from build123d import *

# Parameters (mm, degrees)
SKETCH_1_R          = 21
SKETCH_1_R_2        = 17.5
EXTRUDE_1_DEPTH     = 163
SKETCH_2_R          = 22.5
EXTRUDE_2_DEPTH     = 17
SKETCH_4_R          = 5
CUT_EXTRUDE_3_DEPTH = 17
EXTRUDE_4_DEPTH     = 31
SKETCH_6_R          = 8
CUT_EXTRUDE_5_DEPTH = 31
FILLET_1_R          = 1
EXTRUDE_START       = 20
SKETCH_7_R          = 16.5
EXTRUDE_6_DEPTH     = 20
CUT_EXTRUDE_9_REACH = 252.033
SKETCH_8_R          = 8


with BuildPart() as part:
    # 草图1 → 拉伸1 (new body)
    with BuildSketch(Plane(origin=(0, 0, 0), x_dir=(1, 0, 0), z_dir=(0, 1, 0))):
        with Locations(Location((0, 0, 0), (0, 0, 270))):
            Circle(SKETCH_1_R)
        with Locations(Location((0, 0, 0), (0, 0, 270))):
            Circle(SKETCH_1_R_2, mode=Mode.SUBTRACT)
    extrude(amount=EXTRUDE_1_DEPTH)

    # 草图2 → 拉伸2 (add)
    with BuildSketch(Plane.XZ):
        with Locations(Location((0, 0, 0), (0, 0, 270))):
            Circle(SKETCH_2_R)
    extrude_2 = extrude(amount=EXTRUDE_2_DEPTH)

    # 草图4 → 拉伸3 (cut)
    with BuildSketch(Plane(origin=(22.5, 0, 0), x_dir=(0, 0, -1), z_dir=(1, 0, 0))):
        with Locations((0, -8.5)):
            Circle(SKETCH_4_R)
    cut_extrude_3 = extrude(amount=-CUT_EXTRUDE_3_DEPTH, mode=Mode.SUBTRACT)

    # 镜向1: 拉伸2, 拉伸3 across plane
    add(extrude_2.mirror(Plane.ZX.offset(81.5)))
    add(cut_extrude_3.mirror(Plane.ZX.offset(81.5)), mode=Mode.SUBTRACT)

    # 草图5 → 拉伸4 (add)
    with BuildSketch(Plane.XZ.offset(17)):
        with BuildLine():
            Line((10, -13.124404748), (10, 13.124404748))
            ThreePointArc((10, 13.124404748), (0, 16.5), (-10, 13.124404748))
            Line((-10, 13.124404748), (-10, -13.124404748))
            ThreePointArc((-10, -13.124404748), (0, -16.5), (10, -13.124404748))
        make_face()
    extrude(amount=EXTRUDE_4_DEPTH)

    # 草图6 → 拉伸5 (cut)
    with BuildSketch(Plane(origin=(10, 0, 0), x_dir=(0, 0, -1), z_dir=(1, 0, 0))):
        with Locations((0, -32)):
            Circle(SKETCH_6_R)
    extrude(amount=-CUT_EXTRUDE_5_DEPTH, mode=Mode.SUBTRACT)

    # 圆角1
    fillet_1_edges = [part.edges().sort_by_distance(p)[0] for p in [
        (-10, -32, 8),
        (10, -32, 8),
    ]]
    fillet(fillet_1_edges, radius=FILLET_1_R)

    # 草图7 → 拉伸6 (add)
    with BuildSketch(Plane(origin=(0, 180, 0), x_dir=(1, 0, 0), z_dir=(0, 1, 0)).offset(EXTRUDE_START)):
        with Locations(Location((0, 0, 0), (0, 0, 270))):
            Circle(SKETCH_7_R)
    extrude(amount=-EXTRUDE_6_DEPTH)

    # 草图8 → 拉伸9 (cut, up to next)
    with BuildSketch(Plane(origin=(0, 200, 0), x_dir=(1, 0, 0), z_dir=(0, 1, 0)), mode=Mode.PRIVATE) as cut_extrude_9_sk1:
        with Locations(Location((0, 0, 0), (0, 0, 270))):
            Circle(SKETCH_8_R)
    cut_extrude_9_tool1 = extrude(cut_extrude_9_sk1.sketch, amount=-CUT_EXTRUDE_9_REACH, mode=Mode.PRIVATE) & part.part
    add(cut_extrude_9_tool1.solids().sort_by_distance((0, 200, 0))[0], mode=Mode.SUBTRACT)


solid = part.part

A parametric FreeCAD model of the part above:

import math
import FreeCAD as App
import Part
import Sketcher


def edges_at(feature, points):
    """Names of the edges that pass closest to the given points."""
    edges = feature.Shape.Edges
    near = lambda p: min(range(len(edges)), key=lambda i: edges[i].distToShape(Part.Vertex(*p))[0])
    return sorted({f"Edge{near(p) + 1}" for p in points})

doc = App.newDocument("Part")
body = doc.addObject("PartDesign::Body", "Body")

# Sketch on XZ plane
sketch1 = doc.addObject("Sketcher::SketchObject", "Sketch")
body.addObject(sketch1)
sketch1.AttachmentSupport = (doc.XZ_Plane, [""])
sketch1.MapMode = "FlatFace"
sketch1.addGeometry([
    Part.Circle(App.Vector(0, 0, 0), App.Vector(0, 0, 1), 21),
    Part.Circle(App.Vector(0, 0, 0), App.Vector(0, 0, 1), 18),
], False)
sketch1.addConstraint([
    Sketcher.Constraint("Coincident", 0, 3, -1, 1),
    Sketcher.Constraint("Coincident", 1, 3, -1, 1),
    Sketcher.Constraint("Diameter", 0, 42.0),
    Sketcher.Constraint("Diameter", 1, 35.0),
])
pad1 = doc.addObject("PartDesign::Pad", "Pad")
body.addObject(pad1)
pad1.Profile = sketch1
pad1.Length = 163
pad1.Reversed = True

# Sketch on XZ plane
sketch2 = doc.addObject("Sketcher::SketchObject", "Sketch001")
body.addObject(sketch2)
sketch2.AttachmentSupport = (doc.XZ_Plane, [""])
sketch2.MapMode = "FlatFace"
sketch2.addGeometry(Part.Circle(App.Vector(0, 0, 0), App.Vector(0, 0, 1), 22), False)
sketch2.addConstraint([
    Sketcher.Constraint("Coincident", 0, 3, -1, 1),
    Sketcher.Constraint("Diameter", 0, 45.0),
])
pad2 = doc.addObject("PartDesign::Pad", "Pad001")
body.addObject(pad2)
pad2.Profile = sketch2
pad2.Length = 17

# Sketch on YZ plane
sketch3 = doc.addObject("Sketcher::SketchObject", "Sketch002")
body.addObject(sketch3)
sketch3.AttachmentSupport = (doc.YZ_Plane, [""])
sketch3.MapMode = "FlatFace"
sketch3.AttachmentOffset = App.Placement(App.Vector(0, 0, 22.5), App.Rotation())
sketch3.addGeometry(Part.Circle(App.Vector(-8, 0, 0), App.Vector(0, 0, 1), 5), False)
sketch3.addConstraint([
    Sketcher.Constraint("PointOnObject", 0, 3, -1),
    Sketcher.Constraint("Diameter", 0, 10.0),
    Sketcher.Constraint("DistanceX", 0, 3, -1, 1, 8.5),
])
pocket1 = doc.addObject("PartDesign::Pocket", "Pocket")
body.addObject(pocket1)
pocket1.Profile = sketch3
pocket1.Length = 17
doc.recompute()

datumplane = doc.addObject("PartDesign::Plane", "DatumPlane")
body.addObject(datumplane)
datumplane.AttachmentSupport = (doc.XZ_Plane, [""])
datumplane.MapMode = "FlatFace"
datumplane.AttachmentOffset = App.Placement(App.Vector(0, 0, -81.5), App.Rotation())
mirrored = doc.addObject("PartDesign::Mirrored", "Mirrored")
body.addObject(mirrored)
mirrored.Originals = [pad2, pocket1]
mirrored.MirrorPlane = (datumplane, [""])
body.Tip = mirrored

# Sketch on XZ plane
sketch4 = doc.addObject("Sketcher::SketchObject", "Sketch003")
body.addObject(sketch4)
sketch4.AttachmentSupport = (doc.XZ_Plane, [""])
sketch4.MapMode = "FlatFace"
sketch4.AttachmentOffset = App.Placement(App.Vector(0, 0, 17), App.Rotation())
sketch4.addGeometry([
    Part.LineSegment(App.Vector(10, -13, 0), App.Vector(10, 13, 0)),
    Part.ArcOfCircle(Part.Circle(App.Vector(0, 0, 0), App.Vector(0, 0, 1), 16), math.radians(53), math.radians(127)),
    Part.LineSegment(App.Vector(-10, 13, 0), App.Vector(-10, -13, 0)),
    Part.ArcOfCircle(Part.Circle(App.Vector(0, 0, 0), App.Vector(0, 0, 1), 16), math.radians(-127), math.radians(-53)),
], False)
sketch4.addConstraint([
    Sketcher.Constraint("Coincident", 0, 2, 1, 1),
    Sketcher.Constraint("Coincident", 1, 2, 2, 1),
    Sketcher.Constraint("Coincident", 2, 2, 3, 1),
    Sketcher.Constraint("Coincident", 3, 2, 0, 1),
    Sketcher.Constraint("Vertical", 0),
    Sketcher.Constraint("Vertical", 2),
    Sketcher.Constraint("Coincident", 1, 3, -1, 1),
    Sketcher.Constraint("Coincident", 3, 3, -1, 1),
    Sketcher.Constraint("Equal", 1, 3),
    Sketcher.Constraint("Horizontal", 0, 2, 1, 2),
    Sketcher.Constraint("Radius", 1, 16.5),
    Sketcher.Constraint("DistanceX", -1, 1, 0, 2, 10.0),
])
pad3 = doc.addObject("PartDesign::Pad", "Pad002")
body.addObject(pad3)
pad3.Profile = sketch4
pad3.Length = 31

# Sketch on YZ plane
sketch5 = doc.addObject("Sketcher::SketchObject", "Sketch004")
body.addObject(sketch5)
sketch5.AttachmentSupport = (doc.YZ_Plane, [""])
sketch5.MapMode = "FlatFace"
sketch5.AttachmentOffset = App.Placement(App.Vector(0, 0, 10), App.Rotation())
sketch5.addGeometry(Part.Circle(App.Vector(-32, 0, 0), App.Vector(0, 0, 1), 8), False)
sketch5.addConstraint([
    Sketcher.Constraint("PointOnObject", 0, 3, -1),
    Sketcher.Constraint("Diameter", 0, 16.0),
    Sketcher.Constraint("DistanceX", 0, 3, -1, 1, 32.0),
])
pocket2 = doc.addObject("PartDesign::Pocket", "Pocket001")
body.addObject(pocket2)
pocket2.Profile = sketch5
pocket2.Length = 31
doc.recompute()

fillet = doc.addObject("PartDesign::Fillet", "Fillet")
body.addObject(fillet)
fillet.Base = (pocket2, edges_at(pocket2, [(-10, -32, 8), (10, -32, 8)]))
fillet.Radius = 1

# Sketch on XZ plane
sketch6 = doc.addObject("Sketcher::SketchObject", "Sketch005")
body.addObject(sketch6)
sketch6.AttachmentSupport = (doc.XZ_Plane, [""])
sketch6.MapMode = "FlatFace"
sketch6.AttachmentOffset = App.Placement(App.Vector(0, 0, -200), App.Rotation())
sketch6.addGeometry(Part.Circle(App.Vector(0, 0, 0), App.Vector(0, 0, 1), 16), False)
sketch6.addConstraint([
    Sketcher.Constraint("Coincident", 0, 3, -1, 1),
    Sketcher.Constraint("Diameter", 0, 33.0),
])
pad4 = doc.addObject("PartDesign::Pad", "Pad003")
body.addObject(pad4)
pad4.Profile = sketch6
pad4.Length = 20

# Sketch on XZ plane
sketch7 = doc.addObject("Sketcher::SketchObject", "Sketch006")
body.addObject(sketch7)
sketch7.AttachmentSupport = (doc.XZ_Plane, [""])
sketch7.MapMode = "FlatFace"
sketch7.AttachmentOffset = App.Placement(App.Vector(0, 0, -200), App.Rotation())
sketch7.addGeometry(Part.Circle(App.Vector(0, 0, 0), App.Vector(0, 0, 1), 8), False)
sketch7.addConstraint([
    Sketcher.Constraint("Coincident", 0, 3, -1, 1),
    Sketcher.Constraint("Diameter", 0, 16.0),
])
pocket3 = doc.addObject("PartDesign::Pocket", "Pocket002")
body.addObject(pocket3)
pocket3.Profile = sketch7
pocket3.Type = "UpToFirst"
pocket3.Reversed = True

doc.recompute()
